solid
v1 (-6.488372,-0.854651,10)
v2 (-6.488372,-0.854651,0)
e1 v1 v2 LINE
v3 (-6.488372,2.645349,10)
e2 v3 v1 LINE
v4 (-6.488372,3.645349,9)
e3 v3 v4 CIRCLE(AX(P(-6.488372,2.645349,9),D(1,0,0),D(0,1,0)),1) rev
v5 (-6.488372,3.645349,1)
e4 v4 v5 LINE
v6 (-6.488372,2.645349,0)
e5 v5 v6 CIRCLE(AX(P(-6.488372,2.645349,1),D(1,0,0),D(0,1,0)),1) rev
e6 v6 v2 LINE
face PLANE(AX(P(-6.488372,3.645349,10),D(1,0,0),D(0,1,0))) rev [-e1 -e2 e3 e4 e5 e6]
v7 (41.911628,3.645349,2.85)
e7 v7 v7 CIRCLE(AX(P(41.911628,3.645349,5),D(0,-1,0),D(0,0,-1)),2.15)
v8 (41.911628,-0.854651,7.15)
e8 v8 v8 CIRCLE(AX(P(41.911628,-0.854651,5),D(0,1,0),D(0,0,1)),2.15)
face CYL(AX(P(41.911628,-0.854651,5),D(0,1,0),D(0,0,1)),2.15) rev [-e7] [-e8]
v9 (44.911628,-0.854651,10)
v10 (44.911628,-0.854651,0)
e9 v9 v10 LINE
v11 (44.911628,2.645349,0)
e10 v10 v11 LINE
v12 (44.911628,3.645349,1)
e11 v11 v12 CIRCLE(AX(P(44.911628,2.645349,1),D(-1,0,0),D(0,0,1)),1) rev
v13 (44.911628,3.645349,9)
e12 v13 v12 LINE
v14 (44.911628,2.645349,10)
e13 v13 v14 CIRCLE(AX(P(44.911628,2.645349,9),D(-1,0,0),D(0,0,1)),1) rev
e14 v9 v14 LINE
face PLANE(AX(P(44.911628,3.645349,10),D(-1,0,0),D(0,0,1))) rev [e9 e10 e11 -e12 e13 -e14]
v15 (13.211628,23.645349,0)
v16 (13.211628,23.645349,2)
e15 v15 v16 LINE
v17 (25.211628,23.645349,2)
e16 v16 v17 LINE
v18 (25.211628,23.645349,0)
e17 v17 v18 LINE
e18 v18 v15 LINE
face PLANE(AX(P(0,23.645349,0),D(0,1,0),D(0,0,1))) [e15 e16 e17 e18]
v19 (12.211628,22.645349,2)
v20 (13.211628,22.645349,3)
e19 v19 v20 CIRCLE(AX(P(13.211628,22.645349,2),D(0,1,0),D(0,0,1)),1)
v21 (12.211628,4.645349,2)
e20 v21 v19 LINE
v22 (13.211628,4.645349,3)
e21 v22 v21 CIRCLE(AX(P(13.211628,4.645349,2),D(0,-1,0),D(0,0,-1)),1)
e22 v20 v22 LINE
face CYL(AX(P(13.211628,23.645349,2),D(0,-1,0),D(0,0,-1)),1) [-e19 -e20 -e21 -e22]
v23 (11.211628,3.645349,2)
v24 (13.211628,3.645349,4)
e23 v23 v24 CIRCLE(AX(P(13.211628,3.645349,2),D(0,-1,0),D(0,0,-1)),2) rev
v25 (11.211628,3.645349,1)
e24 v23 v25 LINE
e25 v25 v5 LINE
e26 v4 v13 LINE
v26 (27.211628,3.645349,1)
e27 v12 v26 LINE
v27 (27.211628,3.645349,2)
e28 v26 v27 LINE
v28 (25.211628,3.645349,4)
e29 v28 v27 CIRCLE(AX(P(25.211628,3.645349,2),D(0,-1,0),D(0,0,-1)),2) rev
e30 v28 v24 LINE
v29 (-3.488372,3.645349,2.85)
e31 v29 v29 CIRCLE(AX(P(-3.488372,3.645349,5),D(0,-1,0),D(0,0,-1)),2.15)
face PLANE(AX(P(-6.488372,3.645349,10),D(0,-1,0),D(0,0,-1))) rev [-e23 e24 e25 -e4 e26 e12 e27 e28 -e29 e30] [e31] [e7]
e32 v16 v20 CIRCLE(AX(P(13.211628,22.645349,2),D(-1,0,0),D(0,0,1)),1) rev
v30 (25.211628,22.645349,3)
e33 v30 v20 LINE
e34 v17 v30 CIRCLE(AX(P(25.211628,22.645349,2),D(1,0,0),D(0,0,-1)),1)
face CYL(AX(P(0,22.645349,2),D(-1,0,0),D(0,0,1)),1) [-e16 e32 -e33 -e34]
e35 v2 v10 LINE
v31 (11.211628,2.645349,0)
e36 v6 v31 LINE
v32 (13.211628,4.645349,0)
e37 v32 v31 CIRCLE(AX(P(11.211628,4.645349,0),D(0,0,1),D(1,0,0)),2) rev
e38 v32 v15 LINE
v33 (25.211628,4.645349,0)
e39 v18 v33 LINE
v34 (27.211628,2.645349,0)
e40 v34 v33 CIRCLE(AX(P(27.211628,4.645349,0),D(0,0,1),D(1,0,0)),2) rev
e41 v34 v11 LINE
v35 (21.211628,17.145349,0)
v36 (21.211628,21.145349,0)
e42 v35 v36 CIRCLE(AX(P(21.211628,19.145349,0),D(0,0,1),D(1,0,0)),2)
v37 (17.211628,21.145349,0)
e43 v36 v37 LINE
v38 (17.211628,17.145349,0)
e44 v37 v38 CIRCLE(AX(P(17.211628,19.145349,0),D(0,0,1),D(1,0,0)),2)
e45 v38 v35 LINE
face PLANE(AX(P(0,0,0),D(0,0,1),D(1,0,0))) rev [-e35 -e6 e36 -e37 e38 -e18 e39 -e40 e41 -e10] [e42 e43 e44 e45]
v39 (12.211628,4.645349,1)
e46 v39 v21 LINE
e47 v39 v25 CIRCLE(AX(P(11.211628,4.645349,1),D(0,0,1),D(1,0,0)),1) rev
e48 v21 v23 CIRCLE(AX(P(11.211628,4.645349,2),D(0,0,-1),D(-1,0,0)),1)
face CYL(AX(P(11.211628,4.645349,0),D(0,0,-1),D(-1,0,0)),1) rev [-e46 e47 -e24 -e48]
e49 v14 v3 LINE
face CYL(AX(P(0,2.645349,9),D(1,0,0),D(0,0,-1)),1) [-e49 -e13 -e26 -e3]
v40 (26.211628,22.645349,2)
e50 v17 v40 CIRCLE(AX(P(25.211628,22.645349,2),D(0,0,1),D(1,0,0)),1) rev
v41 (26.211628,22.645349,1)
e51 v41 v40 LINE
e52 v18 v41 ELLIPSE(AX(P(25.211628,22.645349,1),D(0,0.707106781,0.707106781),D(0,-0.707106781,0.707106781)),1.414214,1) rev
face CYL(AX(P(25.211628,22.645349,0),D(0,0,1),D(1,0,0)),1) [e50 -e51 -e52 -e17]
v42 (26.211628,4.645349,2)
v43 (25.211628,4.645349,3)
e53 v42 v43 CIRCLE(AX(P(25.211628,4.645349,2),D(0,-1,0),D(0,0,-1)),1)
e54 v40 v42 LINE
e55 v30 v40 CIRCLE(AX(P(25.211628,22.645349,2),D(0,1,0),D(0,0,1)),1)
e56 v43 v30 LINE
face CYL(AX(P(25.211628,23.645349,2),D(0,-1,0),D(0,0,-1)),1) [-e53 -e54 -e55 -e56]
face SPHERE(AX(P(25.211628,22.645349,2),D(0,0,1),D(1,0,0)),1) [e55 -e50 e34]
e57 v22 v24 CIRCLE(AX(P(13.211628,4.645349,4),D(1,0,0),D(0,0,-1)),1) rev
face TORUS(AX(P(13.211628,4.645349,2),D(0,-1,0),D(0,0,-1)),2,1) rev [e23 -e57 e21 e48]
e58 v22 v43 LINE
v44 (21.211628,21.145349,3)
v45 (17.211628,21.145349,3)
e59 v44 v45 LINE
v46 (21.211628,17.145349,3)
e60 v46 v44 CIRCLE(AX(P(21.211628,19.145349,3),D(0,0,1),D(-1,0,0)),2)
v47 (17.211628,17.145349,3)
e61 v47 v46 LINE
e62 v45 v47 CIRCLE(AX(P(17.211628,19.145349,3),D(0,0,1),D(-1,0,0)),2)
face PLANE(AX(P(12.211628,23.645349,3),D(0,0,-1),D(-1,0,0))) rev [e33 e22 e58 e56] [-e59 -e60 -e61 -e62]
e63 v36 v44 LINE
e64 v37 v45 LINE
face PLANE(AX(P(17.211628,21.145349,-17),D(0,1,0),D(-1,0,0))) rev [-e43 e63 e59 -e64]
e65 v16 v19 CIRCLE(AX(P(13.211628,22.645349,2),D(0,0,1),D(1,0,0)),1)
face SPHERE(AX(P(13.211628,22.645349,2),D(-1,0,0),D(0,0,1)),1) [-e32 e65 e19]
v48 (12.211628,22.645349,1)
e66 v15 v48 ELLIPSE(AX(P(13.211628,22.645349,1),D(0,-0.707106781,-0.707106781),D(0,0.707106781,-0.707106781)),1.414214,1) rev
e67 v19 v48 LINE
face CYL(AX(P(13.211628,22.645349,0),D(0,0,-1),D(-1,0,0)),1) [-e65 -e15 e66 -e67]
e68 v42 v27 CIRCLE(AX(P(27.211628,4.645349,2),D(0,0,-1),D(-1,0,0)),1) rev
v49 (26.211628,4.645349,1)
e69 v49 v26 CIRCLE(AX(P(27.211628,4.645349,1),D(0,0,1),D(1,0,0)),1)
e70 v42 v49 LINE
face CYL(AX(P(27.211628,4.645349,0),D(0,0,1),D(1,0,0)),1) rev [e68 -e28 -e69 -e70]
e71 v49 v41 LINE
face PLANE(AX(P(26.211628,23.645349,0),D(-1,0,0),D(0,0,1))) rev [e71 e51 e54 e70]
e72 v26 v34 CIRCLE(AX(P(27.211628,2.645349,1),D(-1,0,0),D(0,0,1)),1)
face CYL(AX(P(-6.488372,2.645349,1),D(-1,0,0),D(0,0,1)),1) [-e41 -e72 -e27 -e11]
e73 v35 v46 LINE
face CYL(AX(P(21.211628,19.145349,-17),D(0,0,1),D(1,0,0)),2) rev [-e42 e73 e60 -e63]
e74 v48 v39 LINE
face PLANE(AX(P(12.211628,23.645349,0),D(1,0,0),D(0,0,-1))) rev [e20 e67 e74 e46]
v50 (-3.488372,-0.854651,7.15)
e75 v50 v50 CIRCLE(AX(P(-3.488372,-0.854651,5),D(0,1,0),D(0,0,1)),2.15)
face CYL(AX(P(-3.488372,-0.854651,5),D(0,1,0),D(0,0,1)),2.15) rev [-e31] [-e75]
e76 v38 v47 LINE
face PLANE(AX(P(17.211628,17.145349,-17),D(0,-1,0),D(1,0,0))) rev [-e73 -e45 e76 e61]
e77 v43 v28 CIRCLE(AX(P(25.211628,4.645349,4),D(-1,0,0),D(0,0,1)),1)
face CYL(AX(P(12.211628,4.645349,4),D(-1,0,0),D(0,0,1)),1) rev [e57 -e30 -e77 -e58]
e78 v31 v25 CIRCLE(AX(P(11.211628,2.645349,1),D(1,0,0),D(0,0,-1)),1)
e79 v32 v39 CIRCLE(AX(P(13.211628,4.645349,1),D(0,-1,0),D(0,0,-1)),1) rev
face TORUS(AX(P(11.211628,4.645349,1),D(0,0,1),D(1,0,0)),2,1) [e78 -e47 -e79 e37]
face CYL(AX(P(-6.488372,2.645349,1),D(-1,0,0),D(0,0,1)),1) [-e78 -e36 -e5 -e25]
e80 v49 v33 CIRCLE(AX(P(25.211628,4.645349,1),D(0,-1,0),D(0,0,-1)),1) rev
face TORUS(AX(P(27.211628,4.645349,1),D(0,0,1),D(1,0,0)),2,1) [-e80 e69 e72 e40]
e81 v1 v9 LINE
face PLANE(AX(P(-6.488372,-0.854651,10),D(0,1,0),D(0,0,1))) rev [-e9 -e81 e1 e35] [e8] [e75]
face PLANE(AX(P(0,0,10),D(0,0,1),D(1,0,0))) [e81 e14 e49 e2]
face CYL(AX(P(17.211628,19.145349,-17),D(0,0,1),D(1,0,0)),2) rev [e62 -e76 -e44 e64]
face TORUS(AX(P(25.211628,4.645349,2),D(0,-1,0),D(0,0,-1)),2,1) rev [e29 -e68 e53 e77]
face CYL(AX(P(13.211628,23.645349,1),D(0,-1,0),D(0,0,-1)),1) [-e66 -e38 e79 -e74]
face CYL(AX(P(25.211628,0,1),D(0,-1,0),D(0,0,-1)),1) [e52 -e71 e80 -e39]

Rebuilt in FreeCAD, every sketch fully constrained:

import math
import FreeCAD as App
import Part
import Sketcher
from FreeCAD import Vector
Q = App.Units.Quantity


def edges_at(feature, points):
    """Names of the edges that pass closest to the given points."""
    edges = feature.Shape.Edges
    near = lambda p: min(range(len(edges)), key=lambda i: edges[i].distToShape(Part.Vertex(*p))[0])
    return sorted({f"Edge{near(p) + 1}" for p in points})


def add_polygon(sketch, points):
    """Adds a closed chain of lines whose ends are joined by coincident constraints."""
    first, n = sketch.GeometryCount, len(points)
    for a, b in zip(points, points[1:] + points[:1]):
        sketch.addGeometry(Part.LineSegment(App.Vector(*a, 0), App.Vector(*b, 0)), False)
    for i in range(n):
        sketch.addConstraint(Sketcher.Constraint("Coincident", first + i, 2, first + (i + 1) % n, 1))

doc = App.newDocument("Part")
body = doc.addObject("PartDesign::Body", "Body")

# Sketch on XY plane
sketch1 = body.newObject("Sketcher::SketchObject", "Sketch")
sketch1.AttachmentSupport = (doc.getObject("XY_Plane"), [""])
sketch1.MapMode = "FlatFace"
add_polygon(sketch1, [(-6.488372, 3.645349), (-6.488372, -0.854651), (44.911628, -0.854651), (44.911628, 3.645349)])  # lines 0-3
sketch1.addConstraint([
    Sketcher.Constraint("Vertical", 0),
    Sketcher.Constraint("Horizontal", 1),
    Sketcher.Constraint("Vertical", 2),
    Sketcher.Constraint("Horizontal", 3),
    Sketcher.Constraint("DistanceX", 1, 1, 1, 2, Q("51.4 mm")),
    Sketcher.Constraint("DistanceY", 0, 2, 0, 1, Q("4.5 mm")),
    Sketcher.Constraint("DistanceY", 0, 2, -1, 1, Q("0.854651 mm")),
    Sketcher.Constraint("DistanceX", 0, 2, -1, 1, Q("6.488372 mm")),
])
pad1 = body.newObject("PartDesign::Pad", "Pad")
pad1.Profile = sketch1
pad1.Length = 10

# Sketch on XZ plane
sketch2 = body.newObject("Sketcher::SketchObject", "Sketch001")
sketch2.AttachmentSupport = (doc.getObject("XZ_Plane"), [""])
sketch2.MapMode = "FlatFace"
sketch2.AttachmentOffset = App.Placement(Vector(0, 0, -3.645349), App.Rotation())
sketch2.addGeometry([
    Part.Circle(Vector(-3.488372, 5, 0), Vector(0, 0, 1), 2.15),
    Part.Circle(Vector(41.911628, 5, 0), Vector(0, 0, 1), 2.15),
], False)
sketch2.addConstraint([
    Sketcher.Constraint("Equal", 0, 1),
    Sketcher.Constraint("Horizontal", 0, 3, 1, 3),
    Sketcher.Constraint("Diameter", 0, Q("4.3 mm")),
    Sketcher.Constraint("DistanceY", -1, 1, 0, 3, Q("5 mm")),
    Sketcher.Constraint("DistanceX", 0, 3, 1, 3, Q("45.4 mm")),
    Sketcher.Constraint("DistanceX", 0, 3, -1, 1, Q("3.488372 mm")),
])
pocket1 = body.newObject("PartDesign::Pocket", "Pocket")
pocket1.Profile = sketch2
pocket1.Type = "ThroughAll"
pocket1.Midplane = True

# Sketch on XZ plane
sketch3 = body.newObject("Sketcher::SketchObject", "Sketch002")
sketch3.AttachmentSupport = (doc.getObject("XZ_Plane"), [""])
sketch3.MapMode = "FlatFace"
sketch3.AttachmentOffset = App.Placement(Vector(0, 0, -3.645349), App.Rotation())
add_polygon(sketch3, [(12.211628, 0), (12.211628, 3), (26.211628, 3), (26.211628, 0)])  # lines 0-3
sketch3.addConstraint([
    Sketcher.Constraint("Vertical", 0),
    Sketcher.Constraint("Horizontal", 1),
    Sketcher.Constraint("Vertical", 2),
    Sketcher.Constraint("Horizontal", 3),
    Sketcher.Constraint("PointOnObject", 2, 2, -1),
    Sketcher.Constraint("DistanceX", 1, 1, 1, 2, Q("14 mm")),
    Sketcher.Constraint("DistanceY", 0, 1, 0, 2, Q("3 mm")),
    Sketcher.Constraint("DistanceX", -1, 1, 0, 2, Q("12.211628 mm")),
])
pad2 = body.newObject("PartDesign::Pad", "Pad001")
pad2.Profile = sketch3
pad2.Length = 20
pad2.Reversed = True

# Sketch on XY plane
sketch4 = body.newObject("Sketcher::SketchObject", "Sketch003")
sketch4.AttachmentSupport = (doc.getObject("XY_Plane"), [""])
sketch4.MapMode = "FlatFace"
sketch4.AttachmentOffset = App.Placement(Vector(0, 0, 3), App.Rotation())
sketch4.addGeometry([
    Part.LineSegment(Vector(21.211628, 21.145349, 0), Vector(17.211628, 21.145349, 0)),
    Part.ArcOfCircle(Part.Circle(Vector(17.211628, 19.145349, 0), Vector(0, 0, 1), 2), math.radians(90), math.radians(270)),
    Part.LineSegment(Vector(17.211628, 17.145349, 0), Vector(21.211628, 17.145349, 0)),
    Part.ArcOfCircle(Part.Circle(Vector(21.211628, 19.145349, 0), Vector(0, 0, 1), 2), math.radians(-90), math.radians(90)),
], False)
sketch4.addConstraint([
    Sketcher.Constraint("Tangent", 0, 2, 1, 1),
    Sketcher.Constraint("Tangent", 1, 2, 2, 1),
    Sketcher.Constraint("Tangent", 2, 2, 3, 1),
    Sketcher.Constraint("Tangent", 3, 2, 0, 1),
    Sketcher.Constraint("Horizontal", 0),
    Sketcher.Constraint("Horizontal", 2),
    Sketcher.Constraint("Radius", 1, Q("2 mm")),
    Sketcher.Constraint("DistanceX", 0, 2, 0, 1, Q("4 mm")),
    Sketcher.Constraint("DistanceY", -1, 1, 1, 3, Q("19.145349 mm")),
    Sketcher.Constraint("DistanceX", -1, 1, 1, 3, Q("17.211628 mm")),
])
pocket2 = body.newObject("PartDesign::Pocket", "Pocket001")
pocket2.Profile = sketch4
pocket2.Length = 20
doc.recompute()

fillet = body.newObject("PartDesign::Fillet", "Fillet")
fillet.Base = (pocket2, edges_at(pocket2, [
    (19.212, 3.645, 10),
    (2.862, 3.645, 0),
    (12.212, 3.645, 1.5),
    (12.212, 13.645, 0),
    (19.212, 3.645, 3),
    (12.212, 13.645, 3),
    (26.212, 3.645, 1.5),
    (26.212, 13.645, 3),
    (26.212, 13.645, 0),
    (12.212, 23.645, 1.5),
    (19.212, 23.645, 3),
    (26.212, 23.645, 1.5),
    (35.562, 3.645, 0),
]))
fillet.Radius = 1

doc.recompute()
